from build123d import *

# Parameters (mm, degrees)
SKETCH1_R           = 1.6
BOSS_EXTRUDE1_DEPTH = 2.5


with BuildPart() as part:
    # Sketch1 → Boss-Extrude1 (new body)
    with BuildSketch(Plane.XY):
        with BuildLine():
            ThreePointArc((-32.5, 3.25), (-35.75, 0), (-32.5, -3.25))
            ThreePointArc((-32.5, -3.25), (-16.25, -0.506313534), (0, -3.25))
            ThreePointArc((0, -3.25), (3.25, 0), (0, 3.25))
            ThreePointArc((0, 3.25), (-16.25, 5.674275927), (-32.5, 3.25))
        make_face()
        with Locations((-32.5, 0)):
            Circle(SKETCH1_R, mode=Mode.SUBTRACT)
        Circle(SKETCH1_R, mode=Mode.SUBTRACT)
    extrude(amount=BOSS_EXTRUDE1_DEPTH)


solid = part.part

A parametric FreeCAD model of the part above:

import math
import FreeCAD as App
import Part
import Sketcher

V = App.Vector
Q = App.Units.Quantity

doc = App.newDocument("Part")
body = doc.addObject("PartDesign::Body", "Body")

sketch1 = doc.addObject("Sketcher::SketchObject", "Sketch")
body.addObject(sketch1)
sketch1.AttachmentSupport = (doc.XY_Plane, [""])
sketch1.MapMode = "FlatFace"
sketch1.addGeometry(Part.ArcOfCircle(Part.Circle(V(-32.5, 0, 0), V(0, 0, 1), 3.2), math.radians(90), math.radians(270)), False)
sketch1.addGeometry(Part.ArcOfCircle(Part.Circle(V(-16.2, -50, 0), V(0, 0, 1), 49.5), math.radians(71), math.radians(109)), False)
sketch1.addGeometry(Part.ArcOfCircle(Part.Circle(V(0, 0, 0), V(0, 0, 1), 3.2), math.radians(-90), math.radians(90)), False)
sketch1.addGeometry(Part.ArcOfCircle(Part.Circle(V(-16.2, -50, 0), V(0, 0, 1), 55.7), math.radians(73), math.radians(107)), False)
sketch1.addGeometry(Part.Circle(V(-32.5, 0, 0), V(0, 0, 1), 1.6), False)
sketch1.addGeometry(Part.Circle(V(0, 0, 0), V(0, 0, 1), 1.6), False)
sketch1.addConstraint(Sketcher.Constraint("Coincident", 0, 2, 1, 2))
sketch1.addConstraint(Sketcher.Constraint("Coincident", 1, 1, 2, 1))
sketch1.addConstraint(Sketcher.Constraint("Coincident", 2, 2, 3, 1))
sketch1.addConstraint(Sketcher.Constraint("Coincident", 3, 2, 0, 1))
sketch1.addConstraint(Sketcher.Constraint("Coincident", 2, 3, -1, 1))
sketch1.addConstraint(Sketcher.Constraint("Coincident", 5, 3, -1, 1))
sketch1.addConstraint(Sketcher.Constraint("Coincident", 3, 3, 1, 3))
sketch1.addConstraint(Sketcher.Constraint("Coincident", 4, 3, 0, 3))
sketch1.addConstraint(Sketcher.Constraint("Equal", 0, 2))
sketch1.addConstraint(Sketcher.Constraint("Equal", 4, 5))
sketch1.addConstraint(Sketcher.Constraint("Symmetric", 0, 2, 3, 2, -1))
sketch1.addConstraint(Sketcher.Constraint("PointOnObject", 1, 1, -2))
sketch1.addConstraint(Sketcher.Constraint("Vertical", 4, 3, 0, 2))
sketch1.addConstraint(Sketcher.Constraint("Diameter", 4, Q("3.2 mm")))
sketch1.addConstraint(Sketcher.Constraint("Radius", 0, Q("3.25 mm")))
sketch1.addConstraint(Sketcher.Constraint("DistanceY", 1, 3, -1, 1, Q("50 mm")))
sketch1.addConstraint(Sketcher.Constraint("DistanceX", 0, 3, -1, 1, Q("32.5 mm")))
pad1 = doc.addObject("PartDesign::Pad", "Pad")
body.addObject(pad1)
pad1.Profile = sketch1
pad1.Length = 2.5

doc.recompute()
